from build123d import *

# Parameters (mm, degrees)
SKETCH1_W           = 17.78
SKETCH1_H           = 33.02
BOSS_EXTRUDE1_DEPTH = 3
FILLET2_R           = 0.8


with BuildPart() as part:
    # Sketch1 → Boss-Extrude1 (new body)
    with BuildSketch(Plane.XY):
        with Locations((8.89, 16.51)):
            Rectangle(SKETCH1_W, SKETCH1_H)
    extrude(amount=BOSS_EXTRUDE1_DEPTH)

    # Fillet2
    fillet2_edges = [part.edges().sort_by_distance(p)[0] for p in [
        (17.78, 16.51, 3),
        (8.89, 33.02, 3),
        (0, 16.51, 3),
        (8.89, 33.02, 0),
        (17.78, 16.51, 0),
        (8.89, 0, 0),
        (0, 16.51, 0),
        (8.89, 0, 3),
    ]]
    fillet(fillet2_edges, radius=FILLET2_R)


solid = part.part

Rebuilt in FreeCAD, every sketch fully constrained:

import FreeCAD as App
import Part
import Sketcher

V = App.Vector
Q = App.Units.Quantity


def edges_at(feature, points):
    """Names of the edges that pass closest to the given points."""
    edges = feature.Shape.Edges
    near = lambda p: min(range(len(edges)), key=lambda i: edges[i].distToShape(Part.Vertex(*p))[0])
    return sorted({f"Edge{near(p) + 1}" for p in points})

doc = App.newDocument("Part")
body = doc.addObject("PartDesign::Body", "Body")

# Sketch on XY plane
sketch1 = body.newObject("Sketcher::SketchObject", "Sketch")
sketch1.AttachmentSupport = (doc.getObject("XY_Plane"), [""])
sketch1.MapMode = "FlatFace"
sketch1.addGeometry([
    Part.LineSegment(V(0, 33.02, 0), V(0, 0, 0)),
    Part.LineSegment(V(0, 0, 0), V(17.78, 0, 0)),
    Part.LineSegment(V(17.78, 0, 0), V(17.78, 33.02, 0)),
    Part.LineSegment(V(17.78, 33.02, 0), V(0, 33.02, 0)),
], False)
sketch1.addConstraint([
    Sketcher.Constraint("Coincident", 0, 2, 1, 1),
    Sketcher.Constraint("Coincident", 1, 2, 2, 1),
    Sketcher.Constraint("Coincident", 2, 2, 3, 1),
    Sketcher.Constraint("Coincident", 3, 2, 0, 1),
    Sketcher.Constraint("Vertical", 0),
    Sketcher.Constraint("Horizontal", 1),
    Sketcher.Constraint("Vertical", 2),
    Sketcher.Constraint("Horizontal", 3),
    Sketcher.Constraint("Coincident", 0, 2, -1, 1),
    Sketcher.Constraint("DistanceX", 1, 1, 1, 2, Q("17.78 mm")),
    Sketcher.Constraint("DistanceY", 0, 2, 0, 1, Q("33.02 mm")),
])
pad1 = body.newObject("PartDesign::Pad", "Pad")
pad1.Profile = sketch1
pad1.Length = 3
doc.recompute()

fillet = body.newObject("PartDesign::Fillet", "Fillet")
fillet.Base = (pad1, edges_at(pad1, [
    (17.78, 16.51, 3),
    (8.89, 33.02, 3),
    (0, 16.51, 3),
    (8.89, 33.02, 0),
    (17.78, 16.51, 0),
    (8.89, 0, 0),
    (0, 16.51, 0),
    (8.89, 0, 3),
]))
fillet.Radius = 0.8

doc.recompute()
